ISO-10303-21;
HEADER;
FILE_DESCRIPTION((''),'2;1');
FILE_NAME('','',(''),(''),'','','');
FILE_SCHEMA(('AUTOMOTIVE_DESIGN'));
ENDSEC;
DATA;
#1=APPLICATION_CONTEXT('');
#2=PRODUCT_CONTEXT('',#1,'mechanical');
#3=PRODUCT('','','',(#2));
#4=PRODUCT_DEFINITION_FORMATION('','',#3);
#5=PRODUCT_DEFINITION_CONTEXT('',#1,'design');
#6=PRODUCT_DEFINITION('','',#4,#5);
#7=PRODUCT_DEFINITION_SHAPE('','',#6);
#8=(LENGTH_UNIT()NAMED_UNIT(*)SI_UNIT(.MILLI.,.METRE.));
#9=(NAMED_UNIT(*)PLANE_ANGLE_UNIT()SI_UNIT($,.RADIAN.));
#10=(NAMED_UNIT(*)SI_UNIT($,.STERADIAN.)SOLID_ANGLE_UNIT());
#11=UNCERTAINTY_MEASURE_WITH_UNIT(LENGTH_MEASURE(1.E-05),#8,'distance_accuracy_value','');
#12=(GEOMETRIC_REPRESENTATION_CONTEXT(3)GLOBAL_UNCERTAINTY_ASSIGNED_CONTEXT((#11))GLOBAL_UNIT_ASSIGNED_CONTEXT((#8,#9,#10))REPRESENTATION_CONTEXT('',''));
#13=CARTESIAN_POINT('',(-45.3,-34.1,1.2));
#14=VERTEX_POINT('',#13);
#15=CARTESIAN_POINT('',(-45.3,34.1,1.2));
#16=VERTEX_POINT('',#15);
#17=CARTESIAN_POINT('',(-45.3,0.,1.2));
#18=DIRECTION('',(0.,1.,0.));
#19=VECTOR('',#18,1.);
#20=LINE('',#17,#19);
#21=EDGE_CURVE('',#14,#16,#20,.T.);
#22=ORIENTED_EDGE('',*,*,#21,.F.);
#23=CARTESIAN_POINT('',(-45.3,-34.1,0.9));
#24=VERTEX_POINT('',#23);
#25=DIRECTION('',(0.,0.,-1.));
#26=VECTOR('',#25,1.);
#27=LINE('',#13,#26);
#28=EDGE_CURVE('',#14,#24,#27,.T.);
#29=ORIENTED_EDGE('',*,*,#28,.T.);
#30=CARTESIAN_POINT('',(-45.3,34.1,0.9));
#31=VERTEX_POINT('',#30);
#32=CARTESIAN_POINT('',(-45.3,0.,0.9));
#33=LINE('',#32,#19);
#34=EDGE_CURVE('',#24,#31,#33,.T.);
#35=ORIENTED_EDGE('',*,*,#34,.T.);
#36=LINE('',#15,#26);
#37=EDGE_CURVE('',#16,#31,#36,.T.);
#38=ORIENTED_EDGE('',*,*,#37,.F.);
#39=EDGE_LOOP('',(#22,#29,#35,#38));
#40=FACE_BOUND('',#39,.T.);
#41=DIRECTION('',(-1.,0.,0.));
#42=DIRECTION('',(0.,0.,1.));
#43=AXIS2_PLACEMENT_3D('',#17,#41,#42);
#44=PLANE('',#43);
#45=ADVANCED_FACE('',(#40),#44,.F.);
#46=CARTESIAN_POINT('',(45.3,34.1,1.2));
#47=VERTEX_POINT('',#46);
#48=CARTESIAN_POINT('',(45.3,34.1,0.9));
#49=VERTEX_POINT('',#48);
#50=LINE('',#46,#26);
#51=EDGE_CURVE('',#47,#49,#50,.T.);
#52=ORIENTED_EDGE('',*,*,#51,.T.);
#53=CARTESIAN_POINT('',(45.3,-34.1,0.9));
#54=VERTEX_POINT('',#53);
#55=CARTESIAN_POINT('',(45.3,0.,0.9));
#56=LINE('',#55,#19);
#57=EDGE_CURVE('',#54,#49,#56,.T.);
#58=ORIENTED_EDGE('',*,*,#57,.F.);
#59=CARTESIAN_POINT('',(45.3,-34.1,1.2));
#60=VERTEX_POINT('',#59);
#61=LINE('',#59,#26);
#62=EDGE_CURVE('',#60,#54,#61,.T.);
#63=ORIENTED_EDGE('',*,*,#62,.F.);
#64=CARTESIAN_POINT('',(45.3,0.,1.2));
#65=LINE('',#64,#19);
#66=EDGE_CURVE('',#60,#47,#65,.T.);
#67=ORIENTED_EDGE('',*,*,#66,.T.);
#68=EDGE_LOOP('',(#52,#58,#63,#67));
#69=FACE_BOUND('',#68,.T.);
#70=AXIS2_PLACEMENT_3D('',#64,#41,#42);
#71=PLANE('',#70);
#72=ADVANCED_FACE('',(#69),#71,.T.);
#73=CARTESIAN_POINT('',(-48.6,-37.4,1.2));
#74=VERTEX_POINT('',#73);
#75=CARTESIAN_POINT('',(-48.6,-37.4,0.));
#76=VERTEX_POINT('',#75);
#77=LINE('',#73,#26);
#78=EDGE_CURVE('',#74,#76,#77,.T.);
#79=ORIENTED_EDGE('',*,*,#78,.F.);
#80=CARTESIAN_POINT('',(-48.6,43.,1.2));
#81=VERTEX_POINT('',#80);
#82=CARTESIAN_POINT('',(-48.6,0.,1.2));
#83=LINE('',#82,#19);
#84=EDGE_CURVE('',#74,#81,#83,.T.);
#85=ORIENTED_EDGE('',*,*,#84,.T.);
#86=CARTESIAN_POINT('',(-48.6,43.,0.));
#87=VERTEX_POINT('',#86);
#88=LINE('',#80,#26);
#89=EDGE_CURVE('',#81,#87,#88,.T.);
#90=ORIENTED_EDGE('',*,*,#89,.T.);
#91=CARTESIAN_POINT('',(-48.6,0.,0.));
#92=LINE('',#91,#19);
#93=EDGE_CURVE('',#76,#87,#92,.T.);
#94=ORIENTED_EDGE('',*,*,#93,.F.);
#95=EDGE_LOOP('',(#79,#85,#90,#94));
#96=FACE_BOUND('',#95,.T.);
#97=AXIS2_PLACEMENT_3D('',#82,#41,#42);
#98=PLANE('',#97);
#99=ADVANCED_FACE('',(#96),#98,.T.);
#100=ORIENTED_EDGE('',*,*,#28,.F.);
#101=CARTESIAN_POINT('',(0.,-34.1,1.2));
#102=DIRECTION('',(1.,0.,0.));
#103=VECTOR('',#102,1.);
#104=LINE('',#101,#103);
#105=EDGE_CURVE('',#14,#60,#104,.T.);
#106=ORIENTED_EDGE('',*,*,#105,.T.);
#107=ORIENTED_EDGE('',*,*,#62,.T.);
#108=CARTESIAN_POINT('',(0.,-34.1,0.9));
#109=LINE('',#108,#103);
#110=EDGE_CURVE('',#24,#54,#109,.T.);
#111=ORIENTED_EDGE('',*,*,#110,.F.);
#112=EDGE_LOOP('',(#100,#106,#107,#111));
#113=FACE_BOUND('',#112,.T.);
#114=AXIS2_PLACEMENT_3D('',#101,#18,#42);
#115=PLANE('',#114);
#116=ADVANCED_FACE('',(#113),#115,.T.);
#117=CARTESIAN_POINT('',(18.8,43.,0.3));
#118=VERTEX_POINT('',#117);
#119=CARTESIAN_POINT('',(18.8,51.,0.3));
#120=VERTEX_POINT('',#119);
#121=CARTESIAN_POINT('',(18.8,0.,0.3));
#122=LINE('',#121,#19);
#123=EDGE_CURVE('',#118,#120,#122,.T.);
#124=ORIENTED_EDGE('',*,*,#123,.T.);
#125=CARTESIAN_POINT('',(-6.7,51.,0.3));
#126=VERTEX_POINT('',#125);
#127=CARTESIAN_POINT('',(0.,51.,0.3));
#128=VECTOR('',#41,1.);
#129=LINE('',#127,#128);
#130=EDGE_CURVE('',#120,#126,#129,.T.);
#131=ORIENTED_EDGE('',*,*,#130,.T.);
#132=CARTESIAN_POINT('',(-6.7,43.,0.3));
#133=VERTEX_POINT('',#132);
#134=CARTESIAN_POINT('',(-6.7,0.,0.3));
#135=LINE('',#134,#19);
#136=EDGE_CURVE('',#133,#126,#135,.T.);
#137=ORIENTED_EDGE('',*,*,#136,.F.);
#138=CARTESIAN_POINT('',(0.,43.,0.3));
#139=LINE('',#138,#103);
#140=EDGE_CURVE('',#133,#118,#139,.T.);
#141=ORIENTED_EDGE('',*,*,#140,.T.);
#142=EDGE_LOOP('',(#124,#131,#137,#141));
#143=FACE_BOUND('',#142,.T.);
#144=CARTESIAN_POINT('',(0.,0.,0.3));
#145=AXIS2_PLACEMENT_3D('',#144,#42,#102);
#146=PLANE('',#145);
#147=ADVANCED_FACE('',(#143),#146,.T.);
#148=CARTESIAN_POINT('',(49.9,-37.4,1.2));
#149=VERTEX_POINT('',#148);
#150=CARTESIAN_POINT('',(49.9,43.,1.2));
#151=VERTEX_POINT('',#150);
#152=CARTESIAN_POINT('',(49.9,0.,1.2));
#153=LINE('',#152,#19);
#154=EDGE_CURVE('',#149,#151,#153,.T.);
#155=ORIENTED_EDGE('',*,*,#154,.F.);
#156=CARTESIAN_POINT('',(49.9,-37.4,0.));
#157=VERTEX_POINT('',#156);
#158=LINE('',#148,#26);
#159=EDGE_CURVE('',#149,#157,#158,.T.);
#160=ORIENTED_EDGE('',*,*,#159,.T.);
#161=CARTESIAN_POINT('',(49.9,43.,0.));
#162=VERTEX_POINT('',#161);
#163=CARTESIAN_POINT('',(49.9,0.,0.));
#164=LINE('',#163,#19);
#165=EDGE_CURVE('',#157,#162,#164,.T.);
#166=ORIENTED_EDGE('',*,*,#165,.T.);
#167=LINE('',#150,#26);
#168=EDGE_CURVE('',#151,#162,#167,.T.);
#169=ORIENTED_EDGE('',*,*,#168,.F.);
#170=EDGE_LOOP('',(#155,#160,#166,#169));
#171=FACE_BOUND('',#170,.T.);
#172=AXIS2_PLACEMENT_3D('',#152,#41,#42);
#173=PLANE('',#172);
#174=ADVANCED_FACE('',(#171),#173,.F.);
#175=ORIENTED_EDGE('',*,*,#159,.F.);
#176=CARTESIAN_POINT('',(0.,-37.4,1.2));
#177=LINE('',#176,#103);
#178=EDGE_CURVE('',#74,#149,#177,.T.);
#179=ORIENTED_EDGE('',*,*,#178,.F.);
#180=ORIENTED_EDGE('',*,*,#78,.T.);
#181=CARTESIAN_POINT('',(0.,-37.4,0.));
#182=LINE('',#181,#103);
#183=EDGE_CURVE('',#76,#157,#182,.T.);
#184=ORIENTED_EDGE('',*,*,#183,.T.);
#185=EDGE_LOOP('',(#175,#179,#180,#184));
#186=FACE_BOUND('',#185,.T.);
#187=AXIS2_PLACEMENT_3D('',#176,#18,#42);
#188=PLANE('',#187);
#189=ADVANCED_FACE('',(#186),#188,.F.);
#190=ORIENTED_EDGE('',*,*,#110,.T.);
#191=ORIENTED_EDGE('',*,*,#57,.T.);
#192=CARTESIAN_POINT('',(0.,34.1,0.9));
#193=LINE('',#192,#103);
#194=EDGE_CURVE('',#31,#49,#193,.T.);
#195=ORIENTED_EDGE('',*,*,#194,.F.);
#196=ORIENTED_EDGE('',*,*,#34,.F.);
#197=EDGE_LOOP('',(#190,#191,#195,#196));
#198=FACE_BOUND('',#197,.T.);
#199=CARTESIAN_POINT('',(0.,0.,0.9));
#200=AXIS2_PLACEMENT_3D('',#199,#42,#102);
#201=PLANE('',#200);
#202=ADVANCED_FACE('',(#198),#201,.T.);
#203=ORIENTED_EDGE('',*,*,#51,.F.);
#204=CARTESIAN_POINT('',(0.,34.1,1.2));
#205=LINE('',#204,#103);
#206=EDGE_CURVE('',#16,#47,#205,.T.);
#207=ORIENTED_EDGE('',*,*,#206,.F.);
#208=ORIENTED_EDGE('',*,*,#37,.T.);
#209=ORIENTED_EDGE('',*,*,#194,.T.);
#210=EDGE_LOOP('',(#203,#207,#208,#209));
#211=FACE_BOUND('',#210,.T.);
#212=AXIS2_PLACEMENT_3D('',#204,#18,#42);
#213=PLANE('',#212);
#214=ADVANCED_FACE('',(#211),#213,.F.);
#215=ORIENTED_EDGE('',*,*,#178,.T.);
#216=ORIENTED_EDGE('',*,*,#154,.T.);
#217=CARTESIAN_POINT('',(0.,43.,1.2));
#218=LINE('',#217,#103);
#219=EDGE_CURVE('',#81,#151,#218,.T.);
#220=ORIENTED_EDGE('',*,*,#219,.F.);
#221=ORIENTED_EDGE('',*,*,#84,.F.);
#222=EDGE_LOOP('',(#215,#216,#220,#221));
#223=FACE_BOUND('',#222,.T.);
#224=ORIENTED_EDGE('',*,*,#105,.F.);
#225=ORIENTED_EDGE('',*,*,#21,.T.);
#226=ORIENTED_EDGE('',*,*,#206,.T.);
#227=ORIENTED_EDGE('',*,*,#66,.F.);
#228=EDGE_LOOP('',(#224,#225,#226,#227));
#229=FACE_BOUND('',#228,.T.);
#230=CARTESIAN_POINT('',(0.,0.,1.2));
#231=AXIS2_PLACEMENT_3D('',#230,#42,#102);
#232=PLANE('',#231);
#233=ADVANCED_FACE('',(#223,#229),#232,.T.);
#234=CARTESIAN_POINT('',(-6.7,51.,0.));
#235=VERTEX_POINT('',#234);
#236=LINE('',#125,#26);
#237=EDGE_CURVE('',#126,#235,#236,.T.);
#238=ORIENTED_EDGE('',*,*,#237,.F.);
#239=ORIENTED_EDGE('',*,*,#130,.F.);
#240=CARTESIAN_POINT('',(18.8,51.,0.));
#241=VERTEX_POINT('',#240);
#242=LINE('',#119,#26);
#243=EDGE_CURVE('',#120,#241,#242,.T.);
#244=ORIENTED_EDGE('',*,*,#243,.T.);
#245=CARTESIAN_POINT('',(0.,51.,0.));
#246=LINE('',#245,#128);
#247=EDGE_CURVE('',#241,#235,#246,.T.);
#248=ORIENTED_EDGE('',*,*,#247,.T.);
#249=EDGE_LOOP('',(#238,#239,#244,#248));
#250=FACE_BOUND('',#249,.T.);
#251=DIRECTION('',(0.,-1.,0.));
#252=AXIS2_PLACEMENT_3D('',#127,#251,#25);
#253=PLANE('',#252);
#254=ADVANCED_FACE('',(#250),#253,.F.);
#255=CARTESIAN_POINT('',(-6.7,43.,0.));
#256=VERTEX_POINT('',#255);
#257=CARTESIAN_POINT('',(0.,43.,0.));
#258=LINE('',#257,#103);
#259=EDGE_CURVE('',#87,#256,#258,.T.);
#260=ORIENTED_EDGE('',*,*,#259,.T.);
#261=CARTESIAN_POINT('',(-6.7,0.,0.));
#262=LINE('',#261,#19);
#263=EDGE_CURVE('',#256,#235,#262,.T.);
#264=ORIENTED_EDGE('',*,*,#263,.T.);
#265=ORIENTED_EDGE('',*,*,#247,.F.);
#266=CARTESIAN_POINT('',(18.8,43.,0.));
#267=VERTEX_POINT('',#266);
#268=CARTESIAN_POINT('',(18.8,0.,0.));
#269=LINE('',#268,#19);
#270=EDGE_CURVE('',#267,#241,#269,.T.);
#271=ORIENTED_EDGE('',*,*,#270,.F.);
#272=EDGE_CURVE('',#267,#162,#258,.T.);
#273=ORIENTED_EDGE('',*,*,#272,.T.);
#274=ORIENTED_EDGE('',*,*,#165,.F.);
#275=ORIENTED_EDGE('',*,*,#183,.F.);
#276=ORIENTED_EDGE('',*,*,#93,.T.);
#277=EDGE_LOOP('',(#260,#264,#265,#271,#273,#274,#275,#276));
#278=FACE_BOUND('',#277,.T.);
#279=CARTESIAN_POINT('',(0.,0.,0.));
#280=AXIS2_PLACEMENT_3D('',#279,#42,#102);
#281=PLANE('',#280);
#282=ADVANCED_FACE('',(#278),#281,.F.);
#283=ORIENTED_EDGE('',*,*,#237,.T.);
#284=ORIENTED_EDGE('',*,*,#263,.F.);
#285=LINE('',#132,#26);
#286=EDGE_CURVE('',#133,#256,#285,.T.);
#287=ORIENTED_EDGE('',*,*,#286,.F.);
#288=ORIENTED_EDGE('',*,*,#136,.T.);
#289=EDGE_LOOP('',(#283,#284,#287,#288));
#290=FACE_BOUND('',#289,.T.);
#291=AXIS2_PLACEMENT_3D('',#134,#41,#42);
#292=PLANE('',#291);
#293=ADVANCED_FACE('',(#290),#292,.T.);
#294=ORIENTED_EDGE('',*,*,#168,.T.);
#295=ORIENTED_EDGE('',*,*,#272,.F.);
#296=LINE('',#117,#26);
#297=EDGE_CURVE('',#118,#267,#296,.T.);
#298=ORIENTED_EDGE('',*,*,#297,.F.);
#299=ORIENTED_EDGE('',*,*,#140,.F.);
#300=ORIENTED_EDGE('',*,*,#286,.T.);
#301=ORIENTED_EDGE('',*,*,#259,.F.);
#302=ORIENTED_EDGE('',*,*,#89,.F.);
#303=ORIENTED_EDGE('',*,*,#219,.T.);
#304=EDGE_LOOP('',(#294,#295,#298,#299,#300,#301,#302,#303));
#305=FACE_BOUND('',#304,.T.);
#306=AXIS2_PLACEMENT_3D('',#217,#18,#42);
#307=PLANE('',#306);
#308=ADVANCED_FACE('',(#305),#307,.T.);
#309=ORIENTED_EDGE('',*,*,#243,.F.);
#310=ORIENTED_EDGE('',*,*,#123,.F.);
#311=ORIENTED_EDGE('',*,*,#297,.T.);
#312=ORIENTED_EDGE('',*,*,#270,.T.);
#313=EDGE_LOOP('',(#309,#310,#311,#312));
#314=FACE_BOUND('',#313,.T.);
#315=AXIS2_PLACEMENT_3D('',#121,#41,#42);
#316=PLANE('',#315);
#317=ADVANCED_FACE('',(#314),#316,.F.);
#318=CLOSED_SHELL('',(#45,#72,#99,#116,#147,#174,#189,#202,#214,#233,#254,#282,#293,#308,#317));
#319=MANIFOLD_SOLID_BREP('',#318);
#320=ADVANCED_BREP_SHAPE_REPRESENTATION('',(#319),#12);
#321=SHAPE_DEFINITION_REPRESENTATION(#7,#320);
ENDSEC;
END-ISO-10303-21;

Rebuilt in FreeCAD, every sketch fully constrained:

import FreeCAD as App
import Part
import Sketcher
from FreeCAD import Vector
Q = App.Units.Quantity


def add_polygon(sketch, points):
    """Adds a closed chain of lines whose ends are joined by coincident constraints."""
    first, n = sketch.GeometryCount, len(points)
    for a, b in zip(points, points[1:] + points[:1]):
        sketch.addGeometry(Part.LineSegment(App.Vector(*a, 0), App.Vector(*b, 0)), False)
    for i in range(n):
        sketch.addConstraint(Sketcher.Constraint("Coincident", first + i, 2, first + (i + 1) % n, 1))

doc = App.newDocument("Part")
params = doc.addObject("Spreadsheet::Sheet", "Params")
for row, (alias, value) in enumerate([
    ("sketch1_width", "98.5 mm"),
    ("sketch1_width2", "90.6 mm"),
    ("sketch1_height", "80.4 mm"),
    ("sketch1_height2", "68.2 mm"),
    ("pad1_length", "1.2 mm"),
    ("sketch2_width", "90.6 mm"),
    ("sketch2_height", "68.2 mm"),
    ("pad2_length", "0.9 mm"),
    ("sketch3_height", "8 mm"),
    ("sketch3_width", "25.5 mm"),
    ("pad3_length", "0.3 mm"),
], start=1):
    params.set(f"A{row}", alias)
    params.set(f"B{row}", "=" + value)
    params.setAlias(f"B{row}", alias)

body = doc.addObject("PartDesign::Body", "Body")

sketch1 = body.newObject("Sketcher::SketchObject", "Sketch")
sketch1.AttachmentSupport = (doc.getObject("XY_Plane"), [""])
sketch1.MapMode = "FlatFace"
add_polygon(sketch1, [(-49, 43), (-49, -37), (50, -37), (50, 43)])
add_polygon(sketch1, [(45, -34), (-45, -34), (-45, 34), (45, 34)])
sketch1.addConstraint([
    Sketcher.Constraint("Vertical", 0),
    Sketcher.Constraint("Horizontal", 1),
    Sketcher.Constraint("Vertical", 2),
    Sketcher.Constraint("Horizontal", 3),
    Sketcher.Constraint("Horizontal", 4),
    Sketcher.Constraint("Vertical", 5),
    Sketcher.Constraint("Horizontal", 6),
    Sketcher.Constraint("Vertical", 7),
    Sketcher.Constraint("Symmetric", 4, 2, 6, 2, -1, 1),
    Sketcher.Constraint("DistanceX", 1, 1, 1, 2, Q("98.5 mm")),
    Sketcher.Constraint("DistanceX", 4, 2, 4, 1, Q("90.6 mm")),
    Sketcher.Constraint("DistanceY", 0, 2, 0, 1, Q("80.4 mm")),
    Sketcher.Constraint("DistanceY", 5, 1, 5, 2, Q("68.2 mm")),
    Sketcher.Constraint("DistanceY", -1, 1, 2, 2, Q("43 mm")),
    Sketcher.Constraint("DistanceX", 0, 2, -1, 1, Q("48.6 mm")),
])
sketch1.setExpression("Constraints[17]", "Params.sketch1_width")
sketch1.setExpression("Constraints[18]", "Params.sketch1_width2")
sketch1.setExpression("Constraints[19]", "Params.sketch1_height")
sketch1.setExpression("Constraints[20]", "Params.sketch1_height2")
pad1 = body.newObject("PartDesign::Pad", "Pad")
pad1.Profile = sketch1
pad1.setExpression("Length", "Params.pad1_length")

sketch2 = body.newObject("Sketcher::SketchObject", "Sketch001")
sketch2.AttachmentSupport = (doc.getObject("XY_Plane"), [""])
sketch2.MapMode = "FlatFace"
add_polygon(sketch2, [(-45, 34), (-45, -34), (45, -34), (45, 34)])
sketch2.addConstraint([
    Sketcher.Constraint("Vertical", 0),
    Sketcher.Constraint("Horizontal", 1),
    Sketcher.Constraint("Vertical", 2),
    Sketcher.Constraint("Horizontal", 3),
    Sketcher.Constraint("Symmetric", 0, 2, 2, 2, -1, 1),
    Sketcher.Constraint("DistanceX", 1, 1, 1, 2, Q("90.6 mm")),
    Sketcher.Constraint("DistanceY", 0, 2, 0, 1, Q("68.2 mm")),
])
sketch2.setExpression("Constraints[9]", "Params.sketch2_width")
sketch2.setExpression("Constraints[10]", "Params.sketch2_height")
pad2 = body.newObject("PartDesign::Pad", "Pad001")
pad2.Profile = sketch2
pad2.setExpression("Length", "Params.pad2_length")

sketch3 = body.newObject("Sketcher::SketchObject", "Sketch002")
sketch3.AttachmentSupport = (doc.getObject("XY_Plane"), [""])
sketch3.MapMode = "FlatFace"
add_polygon(sketch3, [(-7, 51), (-7, 43), (19, 43), (19, 51)])
sketch3.addConstraint([
    Sketcher.Constraint("Vertical", 0),
    Sketcher.Constraint("Horizontal", 1),
    Sketcher.Constraint("Vertical", 2),
    Sketcher.Constraint("Horizontal", 3),
    Sketcher.Constraint("DistanceY", 0, 2, 0, 1, Q("8 mm")),
    Sketcher.Constraint("DistanceX", 1, 1, 1, 2, Q("25.5 mm")),
    Sketcher.Constraint("DistanceY", -1, 1, 0, 2, Q("43 mm")),
    Sketcher.Constraint("DistanceX", 0, 2, -1, 1, Q("6.7 mm")),
])
sketch3.setExpression("Constraints[8]", "Params.sketch3_height")
sketch3.setExpression("Constraints[9]", "Params.sketch3_width")
pad3 = body.newObject("PartDesign::Pad", "Pad002")
pad3.Profile = sketch3
pad3.setExpression("Length", "Params.pad3_length")

doc.recompute()
